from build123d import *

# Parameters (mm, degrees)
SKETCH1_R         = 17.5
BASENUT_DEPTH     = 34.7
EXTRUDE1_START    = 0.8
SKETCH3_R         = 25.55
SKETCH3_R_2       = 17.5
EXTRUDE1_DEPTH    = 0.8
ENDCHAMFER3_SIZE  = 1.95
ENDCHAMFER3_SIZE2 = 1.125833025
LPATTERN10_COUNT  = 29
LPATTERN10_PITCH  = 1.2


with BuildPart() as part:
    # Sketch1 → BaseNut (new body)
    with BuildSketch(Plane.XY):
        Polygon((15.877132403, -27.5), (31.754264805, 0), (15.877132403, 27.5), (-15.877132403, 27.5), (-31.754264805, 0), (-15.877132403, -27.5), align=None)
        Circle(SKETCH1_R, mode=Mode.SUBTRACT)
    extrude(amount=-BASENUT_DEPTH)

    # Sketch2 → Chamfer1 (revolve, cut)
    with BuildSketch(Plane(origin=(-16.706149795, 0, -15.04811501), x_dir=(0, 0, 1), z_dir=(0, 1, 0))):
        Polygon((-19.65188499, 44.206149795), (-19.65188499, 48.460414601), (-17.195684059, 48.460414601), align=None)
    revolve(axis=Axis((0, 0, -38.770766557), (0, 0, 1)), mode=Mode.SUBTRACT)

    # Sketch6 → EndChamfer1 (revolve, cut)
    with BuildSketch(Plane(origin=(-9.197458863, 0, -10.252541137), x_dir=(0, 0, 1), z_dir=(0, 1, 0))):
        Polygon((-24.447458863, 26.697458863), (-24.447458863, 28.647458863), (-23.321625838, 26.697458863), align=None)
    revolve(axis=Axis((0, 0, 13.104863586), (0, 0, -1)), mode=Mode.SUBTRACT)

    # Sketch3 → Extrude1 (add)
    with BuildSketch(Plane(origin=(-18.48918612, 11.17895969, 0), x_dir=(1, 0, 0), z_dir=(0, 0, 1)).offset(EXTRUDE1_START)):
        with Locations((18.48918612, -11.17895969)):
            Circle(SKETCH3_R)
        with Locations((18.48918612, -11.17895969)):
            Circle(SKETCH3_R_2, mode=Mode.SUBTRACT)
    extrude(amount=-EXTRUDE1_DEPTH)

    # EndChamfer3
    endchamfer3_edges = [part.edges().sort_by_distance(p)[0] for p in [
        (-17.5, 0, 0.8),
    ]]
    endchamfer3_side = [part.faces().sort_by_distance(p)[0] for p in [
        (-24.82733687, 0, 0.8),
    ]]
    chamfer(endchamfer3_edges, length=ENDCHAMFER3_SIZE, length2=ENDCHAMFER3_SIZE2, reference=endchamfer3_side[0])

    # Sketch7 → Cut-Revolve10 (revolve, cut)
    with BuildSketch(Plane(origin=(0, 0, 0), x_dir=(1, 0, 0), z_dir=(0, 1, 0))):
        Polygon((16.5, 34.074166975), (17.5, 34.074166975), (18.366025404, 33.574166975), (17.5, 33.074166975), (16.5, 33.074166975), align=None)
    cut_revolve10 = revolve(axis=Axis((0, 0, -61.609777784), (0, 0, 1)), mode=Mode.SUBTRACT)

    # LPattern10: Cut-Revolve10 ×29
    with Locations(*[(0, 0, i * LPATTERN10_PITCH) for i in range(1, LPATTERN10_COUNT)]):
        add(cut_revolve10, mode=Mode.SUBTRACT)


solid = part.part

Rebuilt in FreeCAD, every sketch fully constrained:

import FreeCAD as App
import Part
import Sketcher
Q = App.Units.Quantity


def edges_at(feature, points):
    """Names of the edges that pass closest to the given points."""
    edges = feature.Shape.Edges
    near = lambda p: min(range(len(edges)), key=lambda i: edges[i].distToShape(Part.Vertex(*p))[0])
    return sorted({f"Edge{near(p) + 1}" for p in points})

doc = App.newDocument("Part")
body = doc.addObject("PartDesign::Body", "Body")

# Sketch on XY plane
sketch1 = body.newObject("Sketcher::SketchObject", "Sketch")
sketch1.AttachmentSupport = (doc.getObject("XY_Plane"), [""])
sketch1.MapMode = "FlatFace"
sketch1.addGeometry(Part.LineSegment(App.Vector(15.877132, -27.5, 0), App.Vector(31.754265, 0, 0)), False)
sketch1.addGeometry(Part.LineSegment(App.Vector(31.754265, 0, 0), App.Vector(15.877132, 27.5, 0)), False)
sketch1.addGeometry(Part.LineSegment(App.Vector(15.877132, 27.5, 0), App.Vector(-15.877132, 27.5, 0)), False)
sketch1.addGeometry(Part.LineSegment(App.Vector(-15.877132, 27.5, 0), App.Vector(-31.754265, 0, 0)), False)
sketch1.addGeometry(Part.LineSegment(App.Vector(-31.754265, 0, 0), App.Vector(-15.877132, -27.5, 0)), False)
sketch1.addGeometry(Part.LineSegment(App.Vector(-15.877132, -27.5, 0), App.Vector(15.877132, -27.5, 0)), False)
sketch1.addGeometry(Part.Circle(App.Vector(0, 0, 0), App.Vector(0, 0, 1), 17.5), False)
sketch1.addConstraint(Sketcher.Constraint("Coincident", 0, 2, 1, 1))
sketch1.addConstraint(Sketcher.Constraint("Coincident", 1, 2, 2, 1))
sketch1.addConstraint(Sketcher.Constraint("Coincident", 2, 2, 3, 1))
sketch1.addConstraint(Sketcher.Constraint("Coincident", 3, 2, 4, 1))
sketch1.addConstraint(Sketcher.Constraint("Coincident", 4, 2, 5, 1))
sketch1.addConstraint(Sketcher.Constraint("Coincident", 5, 2, 0, 1))
sketch1.addConstraint(Sketcher.Constraint("Horizontal", 2))
sketch1.addConstraint(Sketcher.Constraint("Horizontal", 5))
sketch1.addConstraint(Sketcher.Constraint("Coincident", 6, 3, -1, 1))
sketch1.addConstraint(Sketcher.Constraint("Symmetric", 0, 2, 3, 2, -1, 1))
sketch1.addConstraint(Sketcher.Constraint("Symmetric", 1, 2, 4, 2, -1, 1))
sketch1.addConstraint(Sketcher.Constraint("PointOnObject", 0, 2, -1))
sketch1.addConstraint(Sketcher.Constraint("Parallel", 0, 3))
sketch1.addConstraint(Sketcher.Constraint("Vertical", 2, 2, 4, 2))
sketch1.addConstraint(Sketcher.Constraint("Diameter", 6, 35.0))
sketch1.addConstraint(Sketcher.Constraint("Angle", 0, Q("60 deg")))
sketch1.addConstraint(Sketcher.Constraint("DistanceY", 4, 2, 2, 2, 55.0))
sketch1.addConstraint(Sketcher.Constraint("DistanceX", 2, 2, 2, 1, 31.754265))
pad1 = body.newObject("PartDesign::Pad", "Pad")
pad1.Profile = sketch1
pad1.Length = 34.7
pad1.Reversed = True

# Sketch on XZ plane
sketch2 = body.newObject("Sketcher::SketchObject", "Sketch001")
sketch2.AttachmentSupport = (doc.getObject("XZ_Plane"), [""])
sketch2.MapMode = "FlatFace"
sketch2.addGeometry(Part.LineSegment(App.Vector(31.754265, -34.7, 0), App.Vector(27.5, -34.7, 0)), False)
sketch2.addGeometry(Part.LineSegment(App.Vector(27.5, -34.7, 0), App.Vector(31.754265, -32.243799, 0)), False)
sketch2.addGeometry(Part.LineSegment(App.Vector(31.754265, -32.243799, 0), App.Vector(31.754265, -34.7, 0)), False)
sketch2.addConstraint(Sketcher.Constraint("Coincident", 0, 2, 1, 1))
sketch2.addConstraint(Sketcher.Constraint("Coincident", 1, 2, 2, 1))
sketch2.addConstraint(Sketcher.Constraint("Coincident", 2, 2, 0, 1))
sketch2.addConstraint(Sketcher.Constraint("Horizontal", 0))
sketch2.addConstraint(Sketcher.Constraint("Vertical", 2))
sketch2.addConstraint(Sketcher.Constraint("Angle", 1, Q("30 deg")))
sketch2.addConstraint(Sketcher.Constraint("DistanceX", -1, 1, 0, 2, 27.5))
sketch2.addConstraint(Sketcher.Constraint("DistanceY", 0, 2, -1, 1, 34.7))
sketch2.addConstraint(Sketcher.Constraint("DistanceY", 2, 2, 2, 1, 2.456201))
groove = body.newObject("PartDesign::Groove", "Groove")
groove.Profile = sketch2
groove.ReferenceAxis = (sketch2, ["V_Axis"])
groove.Angle = 360

# Sketch on XZ plane
sketch3 = body.newObject("Sketcher::SketchObject", "Sketch002")
sketch3.AttachmentSupport = (doc.getObject("XZ_Plane"), [""])
sketch3.MapMode = "FlatFace"
sketch3.addGeometry(Part.LineSegment(App.Vector(19.45, -34.7, 0), App.Vector(17.5, -34.7, 0)), False)
sketch3.addGeometry(Part.LineSegment(App.Vector(17.5, -34.7, 0), App.Vector(17.5, -33.574167, 0)), False)
sketch3.addGeometry(Part.LineSegment(App.Vector(17.5, -33.574167, 0), App.Vector(19.45, -34.7, 0)), False)
sketch3.addConstraint(Sketcher.Constraint("Coincident", 0, 2, 1, 1))
sketch3.addConstraint(Sketcher.Constraint("Coincident", 1, 2, 2, 1))
sketch3.addConstraint(Sketcher.Constraint("Coincident", 2, 2, 0, 1))
sketch3.addConstraint(Sketcher.Constraint("Horizontal", 0))
sketch3.addConstraint(Sketcher.Constraint("Vertical", 1))
sketch3.addConstraint(Sketcher.Constraint("Angle", 2, Q("-30 deg")))
sketch3.addConstraint(Sketcher.Constraint("DistanceX", 0, 2, 0, 1, 1.95))
sketch3.addConstraint(Sketcher.Constraint("DistanceX", -1, 1, 0, 2, 17.5))
sketch3.addConstraint(Sketcher.Constraint("DistanceY", 0, 2, -1, 1, 34.7))
groove2 = body.newObject("PartDesign::Groove", "Groove001")
groove2.Profile = sketch3
groove2.ReferenceAxis = (sketch3, ["V_Axis"])
groove2.Angle = 360

# Sketch on XY plane
sketch4 = body.newObject("Sketcher::SketchObject", "Sketch003")
sketch4.AttachmentSupport = (doc.getObject("XY_Plane"), [""])
sketch4.MapMode = "FlatFace"
sketch4.AttachmentOffset = App.Placement(App.Vector(0, 0, 0.8), App.Rotation())
sketch4.addGeometry(Part.Circle(App.Vector(0, 0, 0), App.Vector(0, 0, 1), 25.55), False)
sketch4.addGeometry(Part.Circle(App.Vector(0, 0, 0), App.Vector(0, 0, 1), 17.5), False)
sketch4.addConstraint(Sketcher.Constraint("Coincident", 0, 3, -1, 1))
sketch4.addConstraint(Sketcher.Constraint("Coincident", 1, 3, -1, 1))
sketch4.addConstraint(Sketcher.Constraint("Diameter", 1, 35.0))
sketch4.addConstraint(Sketcher.Constraint("Diameter", 0, 51.1))
pad2 = body.newObject("PartDesign::Pad", "Pad001")
pad2.Profile = sketch4
pad2.Length = 0.8
pad2.Reversed = True
doc.recompute()

chamfer = body.newObject("PartDesign::Chamfer", "Chamfer")
chamfer.Base = (pad2, edges_at(pad2, [(-17.5, 0, 0.8)]))
chamfer.ChamferType = "Two distances"
chamfer.Size = 1.95
chamfer.Size2 = 1.125833

# Sketch on XZ plane
sketch5 = body.newObject("Sketcher::SketchObject", "Sketch004")
sketch5.AttachmentSupport = (doc.getObject("XZ_Plane"), [""])
sketch5.MapMode = "FlatFace"
sketch5.addGeometry(Part.LineSegment(App.Vector(17.5, -34.074167, 0), App.Vector(16.5, -34.074167, 0)), False)
sketch5.addGeometry(Part.LineSegment(App.Vector(16.5, -34.074167, 0), App.Vector(16.5, -33.074167, 0)), False)
sketch5.addGeometry(Part.LineSegment(App.Vector(16.5, -33.074167, 0), App.Vector(17.5, -33.074167, 0)), False)
sketch5.addGeometry(Part.LineSegment(App.Vector(17.5, -33.074167, 0), App.Vector(18.366025, -33.574167, 0)), False)
sketch5.addGeometry(Part.LineSegment(App.Vector(18.366025, -33.574167, 0), App.Vector(17.5, -34.074167, 0)), False)
sketch5.addConstraint(Sketcher.Constraint("Coincident", 0, 2, 1, 1))
sketch5.addConstraint(Sketcher.Constraint("Coincident", 1, 2, 2, 1))
sketch5.addConstraint(Sketcher.Constraint("Coincident", 2, 2, 3, 1))
sketch5.addConstraint(Sketcher.Constraint("Coincident", 3, 2, 4, 1))
sketch5.addConstraint(Sketcher.Constraint("Coincident", 4, 2, 0, 1))
sketch5.addConstraint(Sketcher.Constraint("Horizontal", 0))
sketch5.addConstraint(Sketcher.Constraint("Vertical", 1))
sketch5.addConstraint(Sketcher.Constraint("Horizontal", 2))
sketch5.addConstraint(Sketcher.Constraint("Vertical", 2, 2, 4, 2))
sketch5.addConstraint(Sketcher.Constraint("Equal", 2, 1))
sketch5.addConstraint(Sketcher.Constraint("Equal", 3, 4))
sketch5.addConstraint(Sketcher.Constraint("DistanceX", 0, 2, 0, 1, 1.0))
sketch5.addConstraint(Sketcher.Constraint("Angle", 3, Q("-30 deg")))
sketch5.addConstraint(Sketcher.Constraint("DistanceX", -1, 1, 0, 2, 16.5))
sketch5.addConstraint(Sketcher.Constraint("DistanceY", 0, 2, -1, 1, 34.074167))
groove3 = body.newObject("PartDesign::Groove", "Groove002")
groove3.Profile = sketch5
groove3.ReferenceAxis = (sketch5, ["V_Axis"])
groove3.Angle = 360
doc.recompute()

linearpattern = body.newObject("PartDesign::LinearPattern", "LinearPattern")
linearpattern.Originals = [groove3]
linearpattern.Direction = (doc.getObject("Z_Axis"), [""])
linearpattern.Mode = "offset"
linearpattern.Offset = 1.2
linearpattern.Occurrences = 29
body.Tip = linearpattern

doc.recompute()
